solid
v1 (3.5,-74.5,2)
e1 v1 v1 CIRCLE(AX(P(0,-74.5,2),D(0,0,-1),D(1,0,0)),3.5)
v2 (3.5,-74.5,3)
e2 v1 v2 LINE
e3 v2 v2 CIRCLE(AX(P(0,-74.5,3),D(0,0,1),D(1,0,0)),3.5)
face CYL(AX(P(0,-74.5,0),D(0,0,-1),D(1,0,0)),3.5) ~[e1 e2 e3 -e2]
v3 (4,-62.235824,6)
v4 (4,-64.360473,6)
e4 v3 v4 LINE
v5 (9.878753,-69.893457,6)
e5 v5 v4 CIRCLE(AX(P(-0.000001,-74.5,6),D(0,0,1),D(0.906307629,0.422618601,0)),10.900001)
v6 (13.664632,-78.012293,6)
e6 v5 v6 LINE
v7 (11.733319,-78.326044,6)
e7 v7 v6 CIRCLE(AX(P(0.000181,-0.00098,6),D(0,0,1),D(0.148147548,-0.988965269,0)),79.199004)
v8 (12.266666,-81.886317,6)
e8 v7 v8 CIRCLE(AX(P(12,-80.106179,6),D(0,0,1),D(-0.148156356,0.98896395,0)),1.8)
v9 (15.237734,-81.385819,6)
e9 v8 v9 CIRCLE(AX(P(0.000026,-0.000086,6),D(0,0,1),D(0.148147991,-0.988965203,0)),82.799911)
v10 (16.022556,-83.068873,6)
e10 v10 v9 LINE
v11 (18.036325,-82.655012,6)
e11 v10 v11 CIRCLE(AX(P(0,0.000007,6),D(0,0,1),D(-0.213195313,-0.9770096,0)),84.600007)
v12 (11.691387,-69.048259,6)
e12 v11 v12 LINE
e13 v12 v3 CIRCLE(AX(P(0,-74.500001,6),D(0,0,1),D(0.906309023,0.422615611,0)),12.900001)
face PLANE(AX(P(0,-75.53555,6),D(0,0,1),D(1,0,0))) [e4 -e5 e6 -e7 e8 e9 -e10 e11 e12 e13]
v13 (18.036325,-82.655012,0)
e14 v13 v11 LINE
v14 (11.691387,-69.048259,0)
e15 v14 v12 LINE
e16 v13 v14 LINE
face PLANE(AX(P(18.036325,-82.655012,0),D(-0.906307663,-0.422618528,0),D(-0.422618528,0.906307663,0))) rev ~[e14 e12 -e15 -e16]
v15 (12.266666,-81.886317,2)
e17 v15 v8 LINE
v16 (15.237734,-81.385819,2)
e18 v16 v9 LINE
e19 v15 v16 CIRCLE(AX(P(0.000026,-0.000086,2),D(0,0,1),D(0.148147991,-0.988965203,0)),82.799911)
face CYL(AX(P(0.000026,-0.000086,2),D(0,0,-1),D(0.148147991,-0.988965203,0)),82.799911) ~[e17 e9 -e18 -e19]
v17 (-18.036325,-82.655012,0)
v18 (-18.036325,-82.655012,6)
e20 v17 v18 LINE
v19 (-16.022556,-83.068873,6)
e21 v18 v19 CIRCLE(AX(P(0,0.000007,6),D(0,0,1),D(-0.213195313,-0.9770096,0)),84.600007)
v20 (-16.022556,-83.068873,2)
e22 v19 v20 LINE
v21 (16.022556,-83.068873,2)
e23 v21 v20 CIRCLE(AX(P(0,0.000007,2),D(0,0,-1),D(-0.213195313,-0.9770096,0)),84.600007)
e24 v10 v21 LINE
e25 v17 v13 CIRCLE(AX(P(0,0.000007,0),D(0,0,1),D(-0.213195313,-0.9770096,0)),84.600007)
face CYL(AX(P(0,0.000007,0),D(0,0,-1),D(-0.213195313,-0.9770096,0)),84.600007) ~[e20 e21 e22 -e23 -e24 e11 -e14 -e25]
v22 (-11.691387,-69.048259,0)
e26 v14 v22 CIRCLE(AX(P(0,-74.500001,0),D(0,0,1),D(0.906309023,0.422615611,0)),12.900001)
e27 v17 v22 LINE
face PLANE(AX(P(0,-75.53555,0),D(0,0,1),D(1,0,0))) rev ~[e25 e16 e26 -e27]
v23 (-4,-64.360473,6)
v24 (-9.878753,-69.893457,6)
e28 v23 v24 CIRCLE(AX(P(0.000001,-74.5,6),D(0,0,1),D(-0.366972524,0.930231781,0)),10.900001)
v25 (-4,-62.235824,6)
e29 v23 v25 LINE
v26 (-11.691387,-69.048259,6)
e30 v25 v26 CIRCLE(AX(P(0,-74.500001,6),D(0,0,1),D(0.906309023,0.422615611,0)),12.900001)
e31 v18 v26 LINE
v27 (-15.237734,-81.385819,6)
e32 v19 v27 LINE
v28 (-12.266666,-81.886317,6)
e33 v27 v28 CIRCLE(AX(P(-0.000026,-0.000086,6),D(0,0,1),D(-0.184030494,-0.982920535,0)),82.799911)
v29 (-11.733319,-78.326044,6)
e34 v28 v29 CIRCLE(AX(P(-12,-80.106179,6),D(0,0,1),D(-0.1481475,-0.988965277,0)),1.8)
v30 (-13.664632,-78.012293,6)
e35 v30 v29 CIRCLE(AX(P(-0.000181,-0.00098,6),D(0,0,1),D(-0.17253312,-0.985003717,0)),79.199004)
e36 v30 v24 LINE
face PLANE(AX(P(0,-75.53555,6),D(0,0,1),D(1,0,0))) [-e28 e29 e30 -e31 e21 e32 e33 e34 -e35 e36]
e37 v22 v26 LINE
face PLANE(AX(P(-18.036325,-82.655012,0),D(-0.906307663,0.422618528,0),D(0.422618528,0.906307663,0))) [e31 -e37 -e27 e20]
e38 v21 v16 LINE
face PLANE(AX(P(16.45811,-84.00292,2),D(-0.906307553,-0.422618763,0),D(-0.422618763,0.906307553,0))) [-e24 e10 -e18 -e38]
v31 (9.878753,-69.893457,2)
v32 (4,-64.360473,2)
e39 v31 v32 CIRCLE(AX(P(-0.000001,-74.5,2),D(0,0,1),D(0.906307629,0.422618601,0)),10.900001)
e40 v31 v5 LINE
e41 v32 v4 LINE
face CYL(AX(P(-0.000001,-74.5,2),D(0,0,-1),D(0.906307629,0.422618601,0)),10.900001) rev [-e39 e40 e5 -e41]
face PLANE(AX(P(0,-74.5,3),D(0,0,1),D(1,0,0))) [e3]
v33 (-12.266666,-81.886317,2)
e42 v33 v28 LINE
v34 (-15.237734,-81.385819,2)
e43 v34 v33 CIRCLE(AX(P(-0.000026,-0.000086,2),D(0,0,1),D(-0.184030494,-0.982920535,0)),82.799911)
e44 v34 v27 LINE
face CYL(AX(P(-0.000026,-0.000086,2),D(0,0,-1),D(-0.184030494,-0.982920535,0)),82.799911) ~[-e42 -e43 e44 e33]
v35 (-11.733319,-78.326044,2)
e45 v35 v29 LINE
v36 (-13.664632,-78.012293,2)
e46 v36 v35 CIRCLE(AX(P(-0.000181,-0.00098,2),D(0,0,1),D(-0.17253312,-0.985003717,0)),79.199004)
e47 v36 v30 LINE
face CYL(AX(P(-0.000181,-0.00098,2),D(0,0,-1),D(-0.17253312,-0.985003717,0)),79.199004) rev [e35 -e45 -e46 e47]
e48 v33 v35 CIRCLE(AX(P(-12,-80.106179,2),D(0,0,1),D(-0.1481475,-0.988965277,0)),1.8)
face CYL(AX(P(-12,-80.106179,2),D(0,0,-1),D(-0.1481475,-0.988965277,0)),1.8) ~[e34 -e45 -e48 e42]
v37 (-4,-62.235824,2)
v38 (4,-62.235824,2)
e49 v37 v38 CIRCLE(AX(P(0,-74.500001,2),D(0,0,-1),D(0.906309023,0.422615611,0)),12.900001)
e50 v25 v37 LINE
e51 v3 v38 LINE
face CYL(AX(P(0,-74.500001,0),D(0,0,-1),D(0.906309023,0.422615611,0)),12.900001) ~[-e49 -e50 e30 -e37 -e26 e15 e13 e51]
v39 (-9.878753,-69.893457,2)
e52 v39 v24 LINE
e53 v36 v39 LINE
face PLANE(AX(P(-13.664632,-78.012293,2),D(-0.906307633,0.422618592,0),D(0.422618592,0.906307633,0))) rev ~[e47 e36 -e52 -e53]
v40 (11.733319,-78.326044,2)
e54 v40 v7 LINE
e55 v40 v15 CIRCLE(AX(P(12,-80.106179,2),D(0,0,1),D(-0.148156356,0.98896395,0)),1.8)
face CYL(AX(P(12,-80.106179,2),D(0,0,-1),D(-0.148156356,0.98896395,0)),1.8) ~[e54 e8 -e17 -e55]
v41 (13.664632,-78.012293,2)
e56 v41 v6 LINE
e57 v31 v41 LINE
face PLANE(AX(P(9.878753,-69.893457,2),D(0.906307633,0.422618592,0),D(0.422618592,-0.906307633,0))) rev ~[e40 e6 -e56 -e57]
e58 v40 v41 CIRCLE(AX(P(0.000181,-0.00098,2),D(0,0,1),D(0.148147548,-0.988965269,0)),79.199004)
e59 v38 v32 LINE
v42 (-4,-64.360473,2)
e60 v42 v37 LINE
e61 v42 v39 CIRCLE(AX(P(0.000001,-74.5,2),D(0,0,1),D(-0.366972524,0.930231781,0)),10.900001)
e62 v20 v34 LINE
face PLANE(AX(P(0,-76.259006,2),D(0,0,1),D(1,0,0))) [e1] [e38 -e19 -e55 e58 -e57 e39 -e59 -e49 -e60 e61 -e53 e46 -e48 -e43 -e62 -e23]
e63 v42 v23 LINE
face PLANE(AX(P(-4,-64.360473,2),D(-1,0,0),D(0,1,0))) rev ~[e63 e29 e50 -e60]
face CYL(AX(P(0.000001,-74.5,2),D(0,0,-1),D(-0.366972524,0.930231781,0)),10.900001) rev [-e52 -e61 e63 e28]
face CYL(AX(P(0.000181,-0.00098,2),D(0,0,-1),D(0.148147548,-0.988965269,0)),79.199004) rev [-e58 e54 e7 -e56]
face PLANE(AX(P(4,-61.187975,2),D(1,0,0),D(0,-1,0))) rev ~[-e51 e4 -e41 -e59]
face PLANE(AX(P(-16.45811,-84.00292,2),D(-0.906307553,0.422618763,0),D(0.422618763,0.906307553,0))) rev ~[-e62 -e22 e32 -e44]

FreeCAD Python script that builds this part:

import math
import FreeCAD as App
import Part
import Sketcher
Q = App.Units.Quantity

doc = App.newDocument("Part")
params = doc.addObject("Spreadsheet::Sheet", "Params")
for row, (alias, value) in enumerate([
    ("sketch1_radius", "10.900001 mm"),
    ("sketch1_radius2", "1.8 mm"),
    ("pad1_length", "4 mm"),
    ("sketch2_radius", "12.900001 mm"),
    ("pad2_length", "6 mm"),
    ("sketch3_diameter", "7 mm"),
    ("pad3_length", "3 mm"),
], start=1):
    params.set(f"A{row}", alias)
    params.set(f"B{row}", "=" + value)
    params.setAlias(f"B{row}", alias)

body = doc.addObject("PartDesign::Body", "Body")

sketch1 = body.newObject("Sketcher::SketchObject", "Sketch")
sketch1.AttachmentSupport = (doc.getObject("XY_Plane"), [""])
sketch1.MapMode = "FlatFace"
sketch1.AttachmentOffset = App.Placement(App.Vector(0, 0, 2), App.Rotation())
sketch1.addGeometry(Part.ArcOfCircle(Part.Circle(App.Vector(0.000001, -74.5, 0), App.Vector(0, 0, 1), 10.900001), math.radians(111.529026), math.radians(154.999979)), False)
sketch1.addGeometry(Part.LineSegment(App.Vector(-9.878753, -69.893457, 0), App.Vector(-13.664632, -78.012293, 0)), False)
sketch1.addGeometry(Part.ArcOfCircle(Part.Circle(App.Vector(-0.000181, -0.00098, 0), App.Vector(0, 0, 1), 79.199004), math.radians(-99.935133), math.radians(-98.519589)), False)
sketch1.addGeometry(Part.ArcOfCircle(Part.Circle(App.Vector(-12, -80.106179, 0), App.Vector(0, 0, 1), 1.8), math.radians(-98.519587), math.radians(81.4799)), False)
sketch1.addGeometry(Part.ArcOfCircle(Part.Circle(App.Vector(-0.000026, -0.000086, 0), App.Vector(0, 0, 1), 82.799911), math.radians(-100.604613), math.radians(-98.519615)), False)
sketch1.addGeometry(Part.LineSegment(App.Vector(-15.237734, -81.385819, 0), App.Vector(-16.45811, -84.00292, 0)), False)
sketch1.addGeometry(Part.ArcOfCircle(Part.Circle(App.Vector(0, -0.000015, 0), App.Vector(0, 0, 1), 85.599985), math.radians(-101.085153), math.radians(-78.914847)), False)
sketch1.addGeometry(Part.LineSegment(App.Vector(16.45811, -84.00292, 0), App.Vector(15.237734, -81.385819, 0)), False)
sketch1.addGeometry(Part.ArcOfCircle(Part.Circle(App.Vector(0.000026, -0.000086, 0), App.Vector(0, 0, 1), 82.799911), math.radians(-81.480385), math.radians(-79.395387)), False)
sketch1.addGeometry(Part.ArcOfCircle(Part.Circle(App.Vector(12, -80.106179, 0), App.Vector(0, 0, 1), 1.8), math.radians(98.5201), math.radians(278.519587)), False)
sketch1.addGeometry(Part.ArcOfCircle(Part.Circle(App.Vector(0.000181, -0.00098, 0), App.Vector(0, 0, 1), 79.199004), math.radians(-81.480411), math.radians(-80.064867)), False)
sketch1.addGeometry(Part.LineSegment(App.Vector(13.664632, -78.012293, 0), App.Vector(9.878753, -69.893457, 0)), False)
sketch1.addGeometry(Part.ArcOfCircle(Part.Circle(App.Vector(-0.000001, -74.5, 0), App.Vector(0, 0, 1), 10.900001), math.radians(25.000021), math.radians(68.470974)), False)
sketch1.addGeometry(Part.LineSegment(App.Vector(4, -64.360473, 0), App.Vector(4, -61.187975, 0)), False)
sketch1.addGeometry(Part.ArcOfCircle(Part.Circle(App.Vector(0, -74.500008, 0), App.Vector(0, 0, 1), 13.900008), math.radians(73.275527), math.radians(106.724473)), False)
sketch1.addGeometry(Part.LineSegment(App.Vector(-4, -61.187975, 0), App.Vector(-4, -64.360473, 0)), False)
sketch1.addConstraint(Sketcher.Constraint("Tangent", 0, 2, 1, 1))
sketch1.addConstraint(Sketcher.Constraint("Coincident", 1, 2, 2, 1))
sketch1.addConstraint(Sketcher.Constraint("Coincident", 2, 2, 3, 2))
sketch1.addConstraint(Sketcher.Constraint("Tangent", 3, 1, 4, 2))
sketch1.addConstraint(Sketcher.Constraint("Coincident", 4, 1, 5, 1))
sketch1.addConstraint(Sketcher.Constraint("Coincident", 5, 2, 6, 1))
sketch1.addConstraint(Sketcher.Constraint("Coincident", 6, 2, 7, 1))
sketch1.addConstraint(Sketcher.Constraint("Coincident", 7, 2, 8, 2))
sketch1.addConstraint(Sketcher.Constraint("Tangent", 8, 1, 9, 2))
sketch1.addConstraint(Sketcher.Constraint("Coincident", 9, 1, 10, 1))
sketch1.addConstraint(Sketcher.Constraint("Coincident", 10, 2, 11, 1))
sketch1.addConstraint(Sketcher.Constraint("Tangent", 11, 2, 12, 1))
sketch1.addConstraint(Sketcher.Constraint("Coincident", 12, 2, 13, 1))
sketch1.addConstraint(Sketcher.Constraint("Coincident", 13, 2, 14, 1))
sketch1.addConstraint(Sketcher.Constraint("Coincident", 14, 2, 15, 1))
sketch1.addConstraint(Sketcher.Constraint("Coincident", 15, 2, 0, 1))
sketch1.addConstraint(Sketcher.Constraint("Vertical", 13))
sketch1.addConstraint(Sketcher.Constraint("Vertical", 15))
sketch1.addConstraint(Sketcher.Constraint("Coincident", 12, 3, 0, 3))
sketch1.addConstraint(Sketcher.Constraint("Coincident", 14, 3, 0, 3))
sketch1.addConstraint(Sketcher.Constraint("Equal", 4, 8))
sketch1.addConstraint(Sketcher.Constraint("Equal", 3, 9))
sketch1.addConstraint(Sketcher.Constraint("Equal", 2, 10))
sketch1.addConstraint(Sketcher.Constraint("Equal", 0, 12))
sketch1.addConstraint(Sketcher.Constraint("Symmetric", 4, 3, 8, 3, -2))
sketch1.addConstraint(Sketcher.Constraint("Symmetric", 5, 2, 6, 2, -2))
sketch1.addConstraint(Sketcher.Constraint("Symmetric", 1, 2, 10, 2, -2))
sketch1.addConstraint(Sketcher.Constraint("Symmetric", 13, 2, 14, 2, -2))
sketch1.addConstraint(Sketcher.Constraint("Parallel", 1, 5))
sketch1.addConstraint(Sketcher.Constraint("Parallel", 7, 11))
sketch1.addConstraint(Sketcher.Constraint("Horizontal", 3, 3, 9, 3))
sketch1.addConstraint(Sketcher.Constraint("Horizontal", 2, 2, 9, 1))
sketch1.addConstraint(Sketcher.Constraint("Radius", 0, Q("10.900001 mm")))
sketch1.addConstraint(Sketcher.Constraint("Radius", 3, Q("1.8 mm")))
sketch1.addConstraint(Sketcher.Constraint("DistanceX", 3, 3, -1, 1, Q("12 mm")))
sketch1.addConstraint(Sketcher.Constraint("DistanceX", -1, 1, 12, 2, Q("4 mm")))
sketch1.addConstraint(Sketcher.Constraint("DistanceY", 0, 3, -1, 1, Q("74.5 mm")))
sketch1.addConstraint(Sketcher.Constraint("Radius", 4, Q("82.799911 mm")))
sketch1.addConstraint(Sketcher.Constraint("Radius", 14, Q("13.900008 mm")))
sketch1.addConstraint(Sketcher.Constraint("Radius", 2, Q("79.199004 mm")))
sketch1.addConstraint(Sketcher.Constraint("Radius", 6, Q("85.599985 mm")))
sketch1.addConstraint(Sketcher.Constraint("DistanceY", 3, 3, 2, 3, Q("80.105199 mm")))
sketch1.addConstraint(Sketcher.Constraint("DistanceY", 5, 2, 4, 1, Q("2.617101 mm")))
sketch1.addConstraint(Sketcher.Constraint("DistanceY", 8, 1, 7, 2, Q("0.500498 mm")))
sketch1.addConstraint(Sketcher.Constraint("DistanceX", 10, 2, 7, 2, Q("1.573102 mm")))
sketch1.addConstraint(Sketcher.Constraint("DistanceY", 2, 3, -1, 1, Q("0.00098 mm")))
sketch1.addConstraint(Sketcher.Constraint("DistanceX", 1, 2, -1, 1, Q("13.664632 mm")))
sketch1.addConstraint(Sketcher.Constraint("DistanceX", 2, 2, -1, 1, Q("11.733319 mm")))
sketch1.setExpression("Constraints[32]", "Params.sketch1_radius")
sketch1.setExpression("Constraints[33]", "Params.sketch1_radius2")
pad1 = body.newObject("PartDesign::Pad", "Pad")
pad1.Profile = sketch1
pad1.setExpression("Length", "Params.pad1_length")
body2 = doc.addObject("PartDesign::Body", "Body001")

sketch2 = body2.newObject("Sketcher::SketchObject", "Sketch001")
sketch2.AttachmentSupport = (doc.getObject("XY_Plane001"), [""])
sketch2.MapMode = "FlatFace"
sketch2.addGeometry(Part.ArcOfCircle(Part.Circle(App.Vector(0, 0, 0), App.Vector(0, 0, 1), 85), math.radians(-102), math.radians(-78)), False)
sketch2.addGeometry(Part.LineSegment(App.Vector(18, -83, 0), App.Vector(12, -69, 0)), False)
sketch2.addGeometry(Part.ArcOfCircle(Part.Circle(App.Vector(0, -75, 0), App.Vector(0, 0, 1), 13), math.radians(25), math.radians(155)), False)
sketch2.addGeometry(Part.LineSegment(App.Vector(-12, -69, 0), App.Vector(-18, -83, 0)), False)
sketch2.addConstraint(Sketcher.Constraint("Coincident", 0, 2, 1, 1))
sketch2.addConstraint(Sketcher.Constraint("Coincident", 1, 2, 2, 1))
sketch2.addConstraint(Sketcher.Constraint("Coincident", 2, 2, 3, 1))
sketch2.addConstraint(Sketcher.Constraint("Coincident", 3, 2, 0, 1))
sketch2.addConstraint(Sketcher.Constraint("Coincident", 0, 3, -1, 1))
sketch2.addConstraint(Sketcher.Constraint("Symmetric", 1, 2, 2, 2, -2))
sketch2.addConstraint(Sketcher.Constraint("Horizontal", 0, 2, 3, 2))
sketch2.addConstraint(Sketcher.Constraint("Radius", 2, Q("12.900001 mm")))
sketch2.addConstraint(Sketcher.Constraint("Angle", 1, Q("115.000017 deg")))
sketch2.addConstraint(Sketcher.Constraint("DistanceY", 2, 3, -1, 1, Q("74.500001 mm")))
sketch2.addConstraint(Sketcher.Constraint("Radius", 0, Q("84.600007 mm")))
sketch2.addConstraint(Sketcher.Constraint("DistanceY", 1, 2, -1, 1, Q("69.048259 mm")))
sketch2.setExpression("Constraints[7]", "Params.sketch2_radius")
pad2 = body2.newObject("PartDesign::Pad", "Pad001")
pad2.Profile = sketch2
pad2.setExpression("Length", "Params.pad2_length")
doc.recompute()

boolean = body2.newObject("PartDesign::Boolean", "Boolean")
boolean.Type = "Cut"
boolean.addObjects([body])
body3 = doc.addObject("PartDesign::Body", "Body002")

sketch3 = body3.newObject("Sketcher::SketchObject", "Sketch002")
sketch3.AttachmentSupport = (doc.getObject("XY_Plane002"), [""])
sketch3.MapMode = "FlatFace"
sketch3.addGeometry(Part.Circle(App.Vector(0, -74.5, 0), App.Vector(0, 0, 1), 3.5), False)
sketch3.addConstraint(Sketcher.Constraint("PointOnObject", 0, 3, -2))
sketch3.addConstraint(Sketcher.Constraint("Diameter", 0, Q("7 mm")))
sketch3.addConstraint(Sketcher.Constraint("DistanceY", 0, 3, -1, 1, Q("74.5 mm")))
sketch3.setExpression("Constraints[1]", "Params.sketch3_diameter")
pad3 = body3.newObject("PartDesign::Pad", "Pad002")
pad3.Profile = sketch3
pad3.setExpression("Length", "Params.pad3_length")
doc.recompute()

boolean2 = body3.newObject("PartDesign::Boolean", "Boolean001")
boolean2.Type = "Fuse"
boolean2.addObjects([body2])

doc.recompute()
